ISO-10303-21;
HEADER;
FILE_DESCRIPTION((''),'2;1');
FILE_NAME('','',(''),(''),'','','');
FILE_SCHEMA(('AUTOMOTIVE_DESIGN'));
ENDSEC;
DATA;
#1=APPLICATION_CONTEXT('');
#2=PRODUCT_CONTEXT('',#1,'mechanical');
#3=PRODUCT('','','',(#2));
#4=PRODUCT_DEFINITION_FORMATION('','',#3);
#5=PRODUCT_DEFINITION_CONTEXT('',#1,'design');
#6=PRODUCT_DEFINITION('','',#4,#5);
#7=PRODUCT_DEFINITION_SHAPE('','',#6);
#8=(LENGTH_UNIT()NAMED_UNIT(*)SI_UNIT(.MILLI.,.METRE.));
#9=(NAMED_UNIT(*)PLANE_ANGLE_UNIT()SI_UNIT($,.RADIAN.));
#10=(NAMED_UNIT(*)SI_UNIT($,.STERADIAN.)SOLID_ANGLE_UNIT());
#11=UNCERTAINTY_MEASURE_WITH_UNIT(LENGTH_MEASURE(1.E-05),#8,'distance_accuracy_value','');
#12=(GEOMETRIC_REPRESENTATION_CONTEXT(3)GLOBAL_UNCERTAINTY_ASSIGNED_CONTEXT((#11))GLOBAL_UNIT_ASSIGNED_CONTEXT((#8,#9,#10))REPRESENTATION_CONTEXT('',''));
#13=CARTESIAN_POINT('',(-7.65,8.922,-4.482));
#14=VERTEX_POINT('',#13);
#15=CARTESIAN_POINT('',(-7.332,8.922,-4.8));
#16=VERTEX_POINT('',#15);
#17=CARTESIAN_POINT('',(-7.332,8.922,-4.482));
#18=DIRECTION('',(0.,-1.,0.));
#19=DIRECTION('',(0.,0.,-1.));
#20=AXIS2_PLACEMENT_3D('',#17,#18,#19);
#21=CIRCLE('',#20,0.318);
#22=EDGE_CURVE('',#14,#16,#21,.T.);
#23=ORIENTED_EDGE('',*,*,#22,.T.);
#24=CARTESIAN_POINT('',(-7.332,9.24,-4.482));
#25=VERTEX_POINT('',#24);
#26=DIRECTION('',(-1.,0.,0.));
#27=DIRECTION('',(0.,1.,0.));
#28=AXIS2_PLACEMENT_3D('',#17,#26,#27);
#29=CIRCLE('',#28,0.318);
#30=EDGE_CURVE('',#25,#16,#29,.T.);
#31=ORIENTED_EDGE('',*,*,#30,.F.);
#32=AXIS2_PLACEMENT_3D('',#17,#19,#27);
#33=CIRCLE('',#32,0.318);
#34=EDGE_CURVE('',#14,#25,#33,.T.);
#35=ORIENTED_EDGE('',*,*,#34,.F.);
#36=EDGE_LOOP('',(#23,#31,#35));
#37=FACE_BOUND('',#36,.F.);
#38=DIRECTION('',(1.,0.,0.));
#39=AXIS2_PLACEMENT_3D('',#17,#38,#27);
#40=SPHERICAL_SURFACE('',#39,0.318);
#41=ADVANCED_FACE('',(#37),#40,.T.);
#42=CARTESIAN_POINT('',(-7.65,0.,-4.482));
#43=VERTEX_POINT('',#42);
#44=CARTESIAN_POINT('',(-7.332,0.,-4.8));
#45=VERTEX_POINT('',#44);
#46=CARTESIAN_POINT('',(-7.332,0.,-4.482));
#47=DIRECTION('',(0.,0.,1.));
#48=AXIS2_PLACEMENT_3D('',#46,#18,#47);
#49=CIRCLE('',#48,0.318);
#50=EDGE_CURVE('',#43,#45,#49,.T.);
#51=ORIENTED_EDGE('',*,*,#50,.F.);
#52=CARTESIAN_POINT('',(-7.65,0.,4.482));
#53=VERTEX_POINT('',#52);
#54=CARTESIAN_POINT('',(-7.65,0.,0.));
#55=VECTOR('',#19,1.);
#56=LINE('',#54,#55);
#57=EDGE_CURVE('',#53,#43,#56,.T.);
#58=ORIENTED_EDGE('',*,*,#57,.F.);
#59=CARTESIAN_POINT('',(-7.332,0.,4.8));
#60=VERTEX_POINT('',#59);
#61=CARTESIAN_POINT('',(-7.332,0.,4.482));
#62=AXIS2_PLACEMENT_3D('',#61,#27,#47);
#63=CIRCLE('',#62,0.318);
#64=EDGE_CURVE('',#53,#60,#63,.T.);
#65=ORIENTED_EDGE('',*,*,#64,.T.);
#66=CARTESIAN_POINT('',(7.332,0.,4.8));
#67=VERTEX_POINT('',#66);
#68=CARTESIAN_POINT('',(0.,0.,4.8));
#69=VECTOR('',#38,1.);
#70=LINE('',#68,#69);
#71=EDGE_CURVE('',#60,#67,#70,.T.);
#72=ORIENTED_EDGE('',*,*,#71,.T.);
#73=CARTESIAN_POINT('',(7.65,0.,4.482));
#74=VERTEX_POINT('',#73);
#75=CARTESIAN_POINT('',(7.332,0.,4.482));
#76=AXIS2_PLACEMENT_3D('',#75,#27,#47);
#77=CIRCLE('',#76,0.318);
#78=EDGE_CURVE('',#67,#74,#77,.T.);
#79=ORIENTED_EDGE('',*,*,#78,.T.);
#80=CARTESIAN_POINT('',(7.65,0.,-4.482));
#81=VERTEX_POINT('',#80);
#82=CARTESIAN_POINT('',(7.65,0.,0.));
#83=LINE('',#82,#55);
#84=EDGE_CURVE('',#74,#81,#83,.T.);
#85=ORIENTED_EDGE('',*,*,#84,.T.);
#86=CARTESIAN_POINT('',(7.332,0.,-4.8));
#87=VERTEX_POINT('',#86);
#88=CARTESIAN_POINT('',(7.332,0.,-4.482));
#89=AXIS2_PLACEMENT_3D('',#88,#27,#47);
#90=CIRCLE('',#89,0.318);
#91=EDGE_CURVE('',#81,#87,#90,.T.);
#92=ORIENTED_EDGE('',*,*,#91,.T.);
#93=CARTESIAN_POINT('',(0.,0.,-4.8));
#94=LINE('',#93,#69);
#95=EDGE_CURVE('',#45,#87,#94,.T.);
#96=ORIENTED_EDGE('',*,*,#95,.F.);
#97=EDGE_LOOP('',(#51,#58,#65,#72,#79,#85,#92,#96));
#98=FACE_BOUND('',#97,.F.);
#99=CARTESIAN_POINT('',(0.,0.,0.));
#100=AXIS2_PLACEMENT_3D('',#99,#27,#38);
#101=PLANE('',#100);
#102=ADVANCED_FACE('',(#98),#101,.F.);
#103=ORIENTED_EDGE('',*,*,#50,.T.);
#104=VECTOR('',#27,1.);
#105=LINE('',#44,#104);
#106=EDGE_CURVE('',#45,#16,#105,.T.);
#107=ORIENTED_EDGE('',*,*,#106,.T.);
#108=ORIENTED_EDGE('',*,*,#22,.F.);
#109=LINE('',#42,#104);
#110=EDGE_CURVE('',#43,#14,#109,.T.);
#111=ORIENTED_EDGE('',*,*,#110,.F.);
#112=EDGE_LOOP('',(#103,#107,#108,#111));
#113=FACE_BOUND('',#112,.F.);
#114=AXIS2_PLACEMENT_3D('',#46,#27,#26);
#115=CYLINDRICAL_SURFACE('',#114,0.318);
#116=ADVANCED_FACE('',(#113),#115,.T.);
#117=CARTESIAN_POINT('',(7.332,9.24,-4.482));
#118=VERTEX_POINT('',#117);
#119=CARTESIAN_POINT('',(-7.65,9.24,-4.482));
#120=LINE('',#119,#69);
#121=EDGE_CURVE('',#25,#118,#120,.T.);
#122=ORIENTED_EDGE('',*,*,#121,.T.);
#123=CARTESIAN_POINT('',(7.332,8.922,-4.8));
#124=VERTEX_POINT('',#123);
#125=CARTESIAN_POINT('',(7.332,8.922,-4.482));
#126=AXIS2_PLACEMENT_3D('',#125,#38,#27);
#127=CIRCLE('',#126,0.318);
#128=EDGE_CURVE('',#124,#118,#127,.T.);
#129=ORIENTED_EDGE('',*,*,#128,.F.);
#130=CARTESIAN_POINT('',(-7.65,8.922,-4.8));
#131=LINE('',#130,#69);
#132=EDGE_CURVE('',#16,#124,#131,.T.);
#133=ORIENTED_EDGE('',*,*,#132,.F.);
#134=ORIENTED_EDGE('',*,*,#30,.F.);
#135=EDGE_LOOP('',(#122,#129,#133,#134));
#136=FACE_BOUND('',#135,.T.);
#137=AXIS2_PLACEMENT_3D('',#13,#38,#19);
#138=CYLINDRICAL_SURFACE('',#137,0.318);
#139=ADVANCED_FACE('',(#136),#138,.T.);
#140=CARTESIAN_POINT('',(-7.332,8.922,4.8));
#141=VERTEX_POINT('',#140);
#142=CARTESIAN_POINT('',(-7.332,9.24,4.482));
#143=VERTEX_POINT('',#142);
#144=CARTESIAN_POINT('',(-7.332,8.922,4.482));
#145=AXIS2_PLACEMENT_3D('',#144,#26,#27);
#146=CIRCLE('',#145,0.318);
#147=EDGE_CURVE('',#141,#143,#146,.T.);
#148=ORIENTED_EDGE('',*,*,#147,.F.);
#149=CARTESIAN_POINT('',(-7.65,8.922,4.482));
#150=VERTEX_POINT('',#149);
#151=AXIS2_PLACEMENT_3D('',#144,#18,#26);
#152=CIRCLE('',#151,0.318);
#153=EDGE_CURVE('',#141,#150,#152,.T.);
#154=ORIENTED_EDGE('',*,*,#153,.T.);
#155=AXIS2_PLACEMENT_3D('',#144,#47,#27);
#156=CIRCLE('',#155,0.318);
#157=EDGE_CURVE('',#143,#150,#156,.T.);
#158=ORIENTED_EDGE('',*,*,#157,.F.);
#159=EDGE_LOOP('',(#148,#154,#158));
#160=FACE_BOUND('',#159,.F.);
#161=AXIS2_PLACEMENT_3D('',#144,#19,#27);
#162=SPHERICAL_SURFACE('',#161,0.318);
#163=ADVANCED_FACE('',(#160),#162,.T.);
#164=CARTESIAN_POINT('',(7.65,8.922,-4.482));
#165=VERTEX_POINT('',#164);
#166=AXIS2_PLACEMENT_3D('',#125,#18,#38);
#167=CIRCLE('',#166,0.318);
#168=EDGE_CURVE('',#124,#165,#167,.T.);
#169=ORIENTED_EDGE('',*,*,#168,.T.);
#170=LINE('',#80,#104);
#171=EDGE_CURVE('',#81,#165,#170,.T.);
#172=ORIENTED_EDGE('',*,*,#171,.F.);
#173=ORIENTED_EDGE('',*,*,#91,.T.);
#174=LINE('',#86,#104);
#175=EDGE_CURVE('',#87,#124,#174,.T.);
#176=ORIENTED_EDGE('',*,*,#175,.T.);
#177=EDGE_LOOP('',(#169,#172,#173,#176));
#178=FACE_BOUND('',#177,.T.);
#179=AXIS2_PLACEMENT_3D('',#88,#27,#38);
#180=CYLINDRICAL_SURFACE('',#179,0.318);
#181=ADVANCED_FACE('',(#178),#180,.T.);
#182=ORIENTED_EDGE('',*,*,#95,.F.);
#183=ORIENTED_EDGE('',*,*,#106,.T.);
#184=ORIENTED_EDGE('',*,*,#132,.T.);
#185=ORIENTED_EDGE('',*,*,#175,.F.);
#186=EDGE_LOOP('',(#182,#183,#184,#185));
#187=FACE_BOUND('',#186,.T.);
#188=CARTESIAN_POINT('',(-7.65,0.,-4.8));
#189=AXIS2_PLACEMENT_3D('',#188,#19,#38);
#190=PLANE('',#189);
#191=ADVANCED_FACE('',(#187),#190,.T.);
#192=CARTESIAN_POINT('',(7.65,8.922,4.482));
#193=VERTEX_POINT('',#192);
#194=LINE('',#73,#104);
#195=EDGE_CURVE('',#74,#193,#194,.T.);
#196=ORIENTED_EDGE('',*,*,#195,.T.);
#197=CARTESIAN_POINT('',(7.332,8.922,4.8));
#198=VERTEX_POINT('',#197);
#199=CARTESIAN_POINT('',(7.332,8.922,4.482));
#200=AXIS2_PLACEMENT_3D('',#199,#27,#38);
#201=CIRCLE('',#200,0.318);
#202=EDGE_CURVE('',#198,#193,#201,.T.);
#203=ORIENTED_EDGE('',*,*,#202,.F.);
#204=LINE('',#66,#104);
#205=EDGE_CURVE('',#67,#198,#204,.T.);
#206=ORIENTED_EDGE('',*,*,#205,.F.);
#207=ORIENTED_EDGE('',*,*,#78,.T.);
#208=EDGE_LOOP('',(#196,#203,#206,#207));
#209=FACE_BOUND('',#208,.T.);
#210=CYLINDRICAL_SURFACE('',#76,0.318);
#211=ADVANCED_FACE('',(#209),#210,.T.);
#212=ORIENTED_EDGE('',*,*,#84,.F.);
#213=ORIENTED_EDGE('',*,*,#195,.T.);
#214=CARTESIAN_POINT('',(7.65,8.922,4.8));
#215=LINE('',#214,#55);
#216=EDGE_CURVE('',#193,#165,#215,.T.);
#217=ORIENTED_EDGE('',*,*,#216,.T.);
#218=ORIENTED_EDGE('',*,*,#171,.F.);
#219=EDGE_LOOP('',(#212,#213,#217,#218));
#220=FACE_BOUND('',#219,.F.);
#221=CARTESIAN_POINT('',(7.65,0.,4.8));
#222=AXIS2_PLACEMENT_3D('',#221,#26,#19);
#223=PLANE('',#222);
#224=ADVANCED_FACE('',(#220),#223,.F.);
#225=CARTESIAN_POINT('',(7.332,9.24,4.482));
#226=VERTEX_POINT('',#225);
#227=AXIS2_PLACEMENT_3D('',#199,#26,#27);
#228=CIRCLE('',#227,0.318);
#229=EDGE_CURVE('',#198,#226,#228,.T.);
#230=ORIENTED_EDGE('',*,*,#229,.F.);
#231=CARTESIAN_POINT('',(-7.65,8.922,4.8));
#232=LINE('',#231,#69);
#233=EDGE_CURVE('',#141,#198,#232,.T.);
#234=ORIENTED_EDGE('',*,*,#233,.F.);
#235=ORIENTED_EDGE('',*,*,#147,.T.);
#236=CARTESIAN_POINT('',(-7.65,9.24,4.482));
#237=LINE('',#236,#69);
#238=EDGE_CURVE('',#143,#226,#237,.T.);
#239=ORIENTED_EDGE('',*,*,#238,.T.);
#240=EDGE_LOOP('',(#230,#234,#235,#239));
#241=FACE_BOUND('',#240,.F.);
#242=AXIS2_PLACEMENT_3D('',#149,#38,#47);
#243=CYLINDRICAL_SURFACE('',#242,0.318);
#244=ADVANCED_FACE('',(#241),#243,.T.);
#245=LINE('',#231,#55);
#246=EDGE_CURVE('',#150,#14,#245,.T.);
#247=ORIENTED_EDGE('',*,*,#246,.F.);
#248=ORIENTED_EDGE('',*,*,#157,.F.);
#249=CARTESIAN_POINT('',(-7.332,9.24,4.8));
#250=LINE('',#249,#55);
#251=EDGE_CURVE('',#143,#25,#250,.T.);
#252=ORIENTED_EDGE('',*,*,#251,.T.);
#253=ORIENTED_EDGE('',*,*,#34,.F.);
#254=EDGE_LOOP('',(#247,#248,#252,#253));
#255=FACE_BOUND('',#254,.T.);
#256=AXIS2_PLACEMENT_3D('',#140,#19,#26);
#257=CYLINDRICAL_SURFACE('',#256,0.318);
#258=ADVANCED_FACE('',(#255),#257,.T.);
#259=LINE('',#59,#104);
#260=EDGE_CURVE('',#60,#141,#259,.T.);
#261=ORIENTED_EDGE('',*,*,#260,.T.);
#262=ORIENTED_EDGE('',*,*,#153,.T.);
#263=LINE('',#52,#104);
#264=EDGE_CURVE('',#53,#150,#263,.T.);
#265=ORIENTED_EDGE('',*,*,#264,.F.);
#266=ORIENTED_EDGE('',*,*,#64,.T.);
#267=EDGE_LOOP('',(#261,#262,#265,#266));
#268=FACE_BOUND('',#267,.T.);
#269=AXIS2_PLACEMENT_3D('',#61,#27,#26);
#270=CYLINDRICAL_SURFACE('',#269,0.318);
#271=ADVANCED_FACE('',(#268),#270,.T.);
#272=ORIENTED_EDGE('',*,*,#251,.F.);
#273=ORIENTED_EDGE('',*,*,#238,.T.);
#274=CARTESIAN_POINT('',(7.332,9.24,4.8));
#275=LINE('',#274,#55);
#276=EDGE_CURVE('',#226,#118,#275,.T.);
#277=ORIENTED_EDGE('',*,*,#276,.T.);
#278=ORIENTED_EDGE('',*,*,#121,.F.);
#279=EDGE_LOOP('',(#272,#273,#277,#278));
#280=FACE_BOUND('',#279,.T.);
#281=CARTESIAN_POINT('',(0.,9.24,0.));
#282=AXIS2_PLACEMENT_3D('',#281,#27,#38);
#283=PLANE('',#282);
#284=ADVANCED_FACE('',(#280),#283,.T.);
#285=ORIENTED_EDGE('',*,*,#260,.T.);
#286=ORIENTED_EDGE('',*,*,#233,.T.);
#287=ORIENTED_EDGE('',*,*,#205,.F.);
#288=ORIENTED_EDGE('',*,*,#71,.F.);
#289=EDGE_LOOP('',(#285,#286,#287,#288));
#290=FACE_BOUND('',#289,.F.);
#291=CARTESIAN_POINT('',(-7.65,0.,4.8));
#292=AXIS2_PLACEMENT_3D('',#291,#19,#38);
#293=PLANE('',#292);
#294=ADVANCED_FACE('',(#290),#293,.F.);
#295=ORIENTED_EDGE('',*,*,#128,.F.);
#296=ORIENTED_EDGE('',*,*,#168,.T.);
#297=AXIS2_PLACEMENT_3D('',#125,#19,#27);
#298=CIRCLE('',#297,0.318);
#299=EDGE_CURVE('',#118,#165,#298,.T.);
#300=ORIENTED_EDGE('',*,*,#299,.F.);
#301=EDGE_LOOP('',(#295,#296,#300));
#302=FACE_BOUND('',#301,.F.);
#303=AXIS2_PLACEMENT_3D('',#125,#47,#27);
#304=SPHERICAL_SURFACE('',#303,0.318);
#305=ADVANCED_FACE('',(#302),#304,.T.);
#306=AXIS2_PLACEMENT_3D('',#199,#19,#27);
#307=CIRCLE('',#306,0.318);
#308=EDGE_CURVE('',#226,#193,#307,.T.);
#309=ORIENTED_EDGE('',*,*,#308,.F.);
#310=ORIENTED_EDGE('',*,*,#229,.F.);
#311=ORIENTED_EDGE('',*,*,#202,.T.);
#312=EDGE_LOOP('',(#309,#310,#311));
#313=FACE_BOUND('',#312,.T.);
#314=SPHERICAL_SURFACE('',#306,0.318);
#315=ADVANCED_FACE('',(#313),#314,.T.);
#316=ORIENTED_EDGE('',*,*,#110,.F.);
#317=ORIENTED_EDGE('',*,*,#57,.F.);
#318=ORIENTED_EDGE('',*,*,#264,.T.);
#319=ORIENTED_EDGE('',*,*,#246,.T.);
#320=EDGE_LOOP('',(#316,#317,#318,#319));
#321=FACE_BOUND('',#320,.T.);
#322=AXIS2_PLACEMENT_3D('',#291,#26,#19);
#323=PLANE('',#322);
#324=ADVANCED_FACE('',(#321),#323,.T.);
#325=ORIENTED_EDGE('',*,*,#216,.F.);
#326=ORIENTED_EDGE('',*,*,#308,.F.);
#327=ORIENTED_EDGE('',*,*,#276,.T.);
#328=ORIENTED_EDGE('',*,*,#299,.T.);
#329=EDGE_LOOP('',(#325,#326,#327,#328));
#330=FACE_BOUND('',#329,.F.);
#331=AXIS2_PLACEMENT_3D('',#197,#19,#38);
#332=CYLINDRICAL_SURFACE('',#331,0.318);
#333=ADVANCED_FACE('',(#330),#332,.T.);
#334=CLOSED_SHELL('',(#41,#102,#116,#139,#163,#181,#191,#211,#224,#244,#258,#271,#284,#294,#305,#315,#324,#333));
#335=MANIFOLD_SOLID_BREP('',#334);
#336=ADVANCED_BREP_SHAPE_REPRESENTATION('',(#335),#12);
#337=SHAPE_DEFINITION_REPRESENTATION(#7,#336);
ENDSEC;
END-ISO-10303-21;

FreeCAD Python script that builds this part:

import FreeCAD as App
import Part
import Sketcher
from FreeCAD import Vector
Q = App.Units.Quantity


def edges_at(feature, points):
    """Names of the edges that pass closest to the given points."""
    edges = feature.Shape.Edges
    near = lambda p: min(range(len(edges)), key=lambda i: edges[i].distToShape(Part.Vertex(*p))[0])
    return sorted({f"Edge{near(p) + 1}" for p in points})


def add_polygon(sketch, points):
    """Adds a closed chain of lines whose ends are joined by coincident constraints."""
    first, n = sketch.GeometryCount, len(points)
    for a, b in zip(points, points[1:] + points[:1]):
        sketch.addGeometry(Part.LineSegment(App.Vector(*a, 0), App.Vector(*b, 0)), False)
    for i in range(n):
        sketch.addConstraint(Sketcher.Constraint("Coincident", first + i, 2, first + (i + 1) % n, 1))

doc = App.newDocument("Part")
body = doc.addObject("PartDesign::Body", "Body")

# Sketch on XZ plane
sketch1 = doc.addObject("Sketcher::SketchObject", "Sketch")
body.addObject(sketch1)
sketch1.AttachmentSupport = (doc.XZ_Plane, [""])
sketch1.MapMode = "FlatFace"
add_polygon(sketch1, [(-8, -5), (-8, 5), (8, 5), (8, -5)])  # lines 0-3
sketch1.addConstraint([
    Sketcher.Constraint("Vertical", 0),
    Sketcher.Constraint("Horizontal", 1),
    Sketcher.Constraint("Vertical", 2),
    Sketcher.Constraint("Horizontal", 3),
    Sketcher.Constraint("Symmetric", 0, 2, 2, 2, -1, 1),
    Sketcher.Constraint("DistanceX", 1, 1, 1, 2, Q("15.3 mm")),
    Sketcher.Constraint("DistanceY", 0, 1, 0, 2, Q("9.6 mm")),
])
pad1 = doc.addObject("PartDesign::Pad", "Pad")
body.addObject(pad1)
pad1.Profile = sketch1
pad1.Length = 9.24
pad1.Reversed = True
doc.recompute()

fillet = doc.addObject("PartDesign::Fillet", "Fillet")
body.addObject(fillet)
fillet.Base = (pad1, edges_at(pad1, [
    (7.65, 9.24, 0),
    (0, 9.24, -4.8),
    (-7.65, 9.24, 0),
    (0, 9.24, 4.8),
    (-7.65, 4.62, -4.8),
    (7.65, 4.62, -4.8),
    (7.65, 4.62, 4.8),
    (-7.65, 4.62, 4.8),
]))
fillet.Radius = 0.318

doc.recompute()
